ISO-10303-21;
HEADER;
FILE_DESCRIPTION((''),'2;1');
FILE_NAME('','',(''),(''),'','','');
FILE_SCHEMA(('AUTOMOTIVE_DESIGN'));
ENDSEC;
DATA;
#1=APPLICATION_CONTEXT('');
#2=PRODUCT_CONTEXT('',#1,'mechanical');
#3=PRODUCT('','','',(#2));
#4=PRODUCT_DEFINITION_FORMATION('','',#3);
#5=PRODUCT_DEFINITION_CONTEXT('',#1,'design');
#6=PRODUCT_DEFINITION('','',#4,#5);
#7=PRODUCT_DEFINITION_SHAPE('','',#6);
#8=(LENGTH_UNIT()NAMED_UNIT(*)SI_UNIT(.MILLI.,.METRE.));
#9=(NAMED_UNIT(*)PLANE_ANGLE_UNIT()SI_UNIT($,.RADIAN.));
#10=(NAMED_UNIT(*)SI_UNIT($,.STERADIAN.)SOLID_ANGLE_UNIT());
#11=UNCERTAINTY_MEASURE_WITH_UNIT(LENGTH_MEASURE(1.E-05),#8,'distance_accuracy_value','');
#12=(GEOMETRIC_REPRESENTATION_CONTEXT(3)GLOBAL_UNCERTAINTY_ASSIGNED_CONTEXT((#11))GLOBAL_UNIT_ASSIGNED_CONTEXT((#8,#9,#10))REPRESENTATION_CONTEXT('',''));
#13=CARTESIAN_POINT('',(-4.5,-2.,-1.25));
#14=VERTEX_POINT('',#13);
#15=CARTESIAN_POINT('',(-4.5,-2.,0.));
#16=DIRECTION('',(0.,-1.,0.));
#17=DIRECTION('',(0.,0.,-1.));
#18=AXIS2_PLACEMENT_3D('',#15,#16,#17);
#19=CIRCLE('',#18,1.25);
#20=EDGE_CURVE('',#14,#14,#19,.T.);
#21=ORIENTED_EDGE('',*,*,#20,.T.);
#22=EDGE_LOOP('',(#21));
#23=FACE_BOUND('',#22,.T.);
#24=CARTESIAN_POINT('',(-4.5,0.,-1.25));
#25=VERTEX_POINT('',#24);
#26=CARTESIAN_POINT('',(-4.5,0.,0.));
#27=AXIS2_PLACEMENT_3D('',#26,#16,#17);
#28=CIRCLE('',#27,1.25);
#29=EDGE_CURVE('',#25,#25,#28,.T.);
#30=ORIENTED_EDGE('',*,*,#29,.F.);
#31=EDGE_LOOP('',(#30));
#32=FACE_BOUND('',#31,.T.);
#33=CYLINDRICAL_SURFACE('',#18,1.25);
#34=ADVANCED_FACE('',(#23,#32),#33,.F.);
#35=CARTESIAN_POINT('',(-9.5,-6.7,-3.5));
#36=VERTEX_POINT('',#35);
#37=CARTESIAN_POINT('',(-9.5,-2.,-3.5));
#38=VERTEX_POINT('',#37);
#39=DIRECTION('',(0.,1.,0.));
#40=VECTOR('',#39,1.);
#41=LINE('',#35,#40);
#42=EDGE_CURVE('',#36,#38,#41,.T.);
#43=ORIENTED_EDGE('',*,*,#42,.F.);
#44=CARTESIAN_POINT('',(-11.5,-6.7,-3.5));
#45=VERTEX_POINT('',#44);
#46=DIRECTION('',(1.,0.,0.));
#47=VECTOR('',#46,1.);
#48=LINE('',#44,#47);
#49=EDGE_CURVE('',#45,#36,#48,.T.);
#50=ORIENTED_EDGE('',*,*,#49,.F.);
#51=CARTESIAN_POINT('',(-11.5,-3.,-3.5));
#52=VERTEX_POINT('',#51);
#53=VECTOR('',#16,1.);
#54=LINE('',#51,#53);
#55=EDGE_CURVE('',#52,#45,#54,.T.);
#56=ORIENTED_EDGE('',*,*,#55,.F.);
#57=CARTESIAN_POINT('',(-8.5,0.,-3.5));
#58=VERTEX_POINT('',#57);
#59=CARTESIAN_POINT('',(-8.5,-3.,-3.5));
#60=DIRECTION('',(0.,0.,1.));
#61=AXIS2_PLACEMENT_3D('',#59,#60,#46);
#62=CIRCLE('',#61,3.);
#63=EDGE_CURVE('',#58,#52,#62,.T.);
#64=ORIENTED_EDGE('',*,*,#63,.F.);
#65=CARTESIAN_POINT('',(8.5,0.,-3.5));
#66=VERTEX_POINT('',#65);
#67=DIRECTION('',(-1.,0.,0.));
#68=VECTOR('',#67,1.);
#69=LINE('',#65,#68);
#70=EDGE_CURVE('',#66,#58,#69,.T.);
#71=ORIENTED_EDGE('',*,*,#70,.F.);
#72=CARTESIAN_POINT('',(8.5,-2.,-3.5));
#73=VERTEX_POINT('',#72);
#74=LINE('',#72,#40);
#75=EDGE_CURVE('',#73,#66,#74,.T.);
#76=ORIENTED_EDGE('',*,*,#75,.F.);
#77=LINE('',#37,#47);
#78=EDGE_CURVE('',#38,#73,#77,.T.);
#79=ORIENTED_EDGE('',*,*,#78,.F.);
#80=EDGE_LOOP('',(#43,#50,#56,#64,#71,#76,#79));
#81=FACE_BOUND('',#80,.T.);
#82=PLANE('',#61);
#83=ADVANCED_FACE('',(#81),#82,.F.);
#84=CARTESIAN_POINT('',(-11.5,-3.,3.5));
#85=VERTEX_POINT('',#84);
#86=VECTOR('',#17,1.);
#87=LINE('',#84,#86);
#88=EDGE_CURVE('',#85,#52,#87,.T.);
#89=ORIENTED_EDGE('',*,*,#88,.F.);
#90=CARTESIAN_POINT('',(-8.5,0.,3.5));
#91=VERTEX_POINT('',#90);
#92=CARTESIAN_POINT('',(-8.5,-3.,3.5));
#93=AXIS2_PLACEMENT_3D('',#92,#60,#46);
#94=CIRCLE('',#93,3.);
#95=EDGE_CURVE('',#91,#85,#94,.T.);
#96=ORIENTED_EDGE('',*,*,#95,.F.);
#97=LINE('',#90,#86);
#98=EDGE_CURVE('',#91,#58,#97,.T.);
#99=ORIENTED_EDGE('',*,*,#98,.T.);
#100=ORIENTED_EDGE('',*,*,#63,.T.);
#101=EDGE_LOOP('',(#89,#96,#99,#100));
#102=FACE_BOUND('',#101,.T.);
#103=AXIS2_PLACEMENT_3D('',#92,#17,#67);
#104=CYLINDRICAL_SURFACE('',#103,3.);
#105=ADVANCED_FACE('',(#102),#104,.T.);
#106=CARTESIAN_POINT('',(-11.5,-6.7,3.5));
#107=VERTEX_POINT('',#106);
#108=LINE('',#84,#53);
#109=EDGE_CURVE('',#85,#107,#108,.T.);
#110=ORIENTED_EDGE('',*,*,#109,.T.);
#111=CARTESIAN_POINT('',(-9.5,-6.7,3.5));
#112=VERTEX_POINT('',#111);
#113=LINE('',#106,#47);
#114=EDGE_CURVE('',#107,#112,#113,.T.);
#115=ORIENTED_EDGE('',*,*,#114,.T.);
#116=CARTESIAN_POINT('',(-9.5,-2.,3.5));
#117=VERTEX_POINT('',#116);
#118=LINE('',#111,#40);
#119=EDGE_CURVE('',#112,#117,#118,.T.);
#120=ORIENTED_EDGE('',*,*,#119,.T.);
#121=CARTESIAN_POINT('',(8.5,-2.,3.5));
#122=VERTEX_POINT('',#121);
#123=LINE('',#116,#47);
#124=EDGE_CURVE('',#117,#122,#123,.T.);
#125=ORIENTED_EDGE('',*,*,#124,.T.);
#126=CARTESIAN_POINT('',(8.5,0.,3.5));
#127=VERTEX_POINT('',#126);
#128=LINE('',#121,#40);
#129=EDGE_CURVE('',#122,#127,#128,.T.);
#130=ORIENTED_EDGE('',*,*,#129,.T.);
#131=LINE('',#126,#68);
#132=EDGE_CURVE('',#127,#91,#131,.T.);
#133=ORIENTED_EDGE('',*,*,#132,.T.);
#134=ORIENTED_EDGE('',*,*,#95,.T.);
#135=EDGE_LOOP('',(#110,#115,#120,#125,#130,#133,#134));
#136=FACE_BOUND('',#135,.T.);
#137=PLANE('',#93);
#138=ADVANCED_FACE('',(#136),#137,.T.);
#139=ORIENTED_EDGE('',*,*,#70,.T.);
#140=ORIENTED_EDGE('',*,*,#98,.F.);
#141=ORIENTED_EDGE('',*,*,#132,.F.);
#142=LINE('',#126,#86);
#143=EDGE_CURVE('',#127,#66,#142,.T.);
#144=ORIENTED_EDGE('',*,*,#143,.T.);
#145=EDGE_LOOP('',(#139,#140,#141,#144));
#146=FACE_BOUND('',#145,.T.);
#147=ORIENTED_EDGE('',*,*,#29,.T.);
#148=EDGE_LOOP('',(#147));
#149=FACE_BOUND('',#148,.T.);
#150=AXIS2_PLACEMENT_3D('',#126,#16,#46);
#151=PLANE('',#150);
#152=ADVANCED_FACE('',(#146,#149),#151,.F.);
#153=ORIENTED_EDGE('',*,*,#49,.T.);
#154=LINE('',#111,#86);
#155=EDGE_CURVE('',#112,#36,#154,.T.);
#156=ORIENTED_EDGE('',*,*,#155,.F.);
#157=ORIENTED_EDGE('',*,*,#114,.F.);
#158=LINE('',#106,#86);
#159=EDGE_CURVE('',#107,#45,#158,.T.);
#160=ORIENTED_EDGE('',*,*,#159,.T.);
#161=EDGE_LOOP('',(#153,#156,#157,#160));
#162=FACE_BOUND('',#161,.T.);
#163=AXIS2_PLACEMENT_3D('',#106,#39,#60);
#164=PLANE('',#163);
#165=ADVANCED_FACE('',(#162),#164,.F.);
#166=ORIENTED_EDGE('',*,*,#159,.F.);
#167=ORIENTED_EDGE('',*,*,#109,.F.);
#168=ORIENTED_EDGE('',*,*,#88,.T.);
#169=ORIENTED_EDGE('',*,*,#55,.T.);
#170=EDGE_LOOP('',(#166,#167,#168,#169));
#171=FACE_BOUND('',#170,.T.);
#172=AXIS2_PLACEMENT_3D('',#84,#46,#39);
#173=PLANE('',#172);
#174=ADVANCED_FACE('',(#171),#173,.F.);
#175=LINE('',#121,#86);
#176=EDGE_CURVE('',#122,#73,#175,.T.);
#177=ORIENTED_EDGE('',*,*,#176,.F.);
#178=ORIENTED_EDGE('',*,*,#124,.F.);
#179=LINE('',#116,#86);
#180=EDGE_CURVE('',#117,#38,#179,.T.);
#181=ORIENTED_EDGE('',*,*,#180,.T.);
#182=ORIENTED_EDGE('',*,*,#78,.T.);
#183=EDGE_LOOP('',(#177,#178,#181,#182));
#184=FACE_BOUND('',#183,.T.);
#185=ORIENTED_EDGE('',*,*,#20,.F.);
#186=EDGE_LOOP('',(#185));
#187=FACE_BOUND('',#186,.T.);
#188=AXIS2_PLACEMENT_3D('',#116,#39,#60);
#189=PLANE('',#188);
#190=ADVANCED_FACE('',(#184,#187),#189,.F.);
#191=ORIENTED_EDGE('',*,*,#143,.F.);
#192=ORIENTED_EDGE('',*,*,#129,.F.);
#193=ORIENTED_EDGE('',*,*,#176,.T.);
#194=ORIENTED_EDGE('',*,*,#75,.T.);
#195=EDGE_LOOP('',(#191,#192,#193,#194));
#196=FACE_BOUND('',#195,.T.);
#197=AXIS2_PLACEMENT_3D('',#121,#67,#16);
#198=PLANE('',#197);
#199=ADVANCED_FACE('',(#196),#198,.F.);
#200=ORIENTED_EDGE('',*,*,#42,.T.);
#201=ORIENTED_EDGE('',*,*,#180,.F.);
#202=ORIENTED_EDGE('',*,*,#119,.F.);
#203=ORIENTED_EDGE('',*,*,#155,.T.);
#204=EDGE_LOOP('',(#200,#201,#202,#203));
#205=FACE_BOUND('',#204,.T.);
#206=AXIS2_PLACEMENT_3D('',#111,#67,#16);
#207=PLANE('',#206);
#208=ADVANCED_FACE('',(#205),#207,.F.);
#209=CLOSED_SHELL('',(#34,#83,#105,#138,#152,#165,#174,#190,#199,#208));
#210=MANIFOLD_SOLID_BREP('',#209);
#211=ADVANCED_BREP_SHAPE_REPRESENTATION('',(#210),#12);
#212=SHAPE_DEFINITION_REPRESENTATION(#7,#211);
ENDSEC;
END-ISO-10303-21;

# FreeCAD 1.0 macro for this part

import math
import FreeCAD as App
import Part
import Sketcher
Q = App.Units.Quantity

doc = App.newDocument("Part")
params = doc.addObject("Spreadsheet::Sheet", "Params")
for row, (alias, value) in enumerate([
    ("sketch1_radius", "3 mm"),
    ("sketch1_width", "17 mm"),
    ("sketch1_width2", "2 mm"),
    ("sketch1_height", "3.7 mm"),
    ("pad1_length", "7 mm"),
    ("sketch2_diameter", "2.5 mm"),
    ("hole_diameter", "2.5 mm"),
], start=1):
    params.set(f"A{row}", alias)
    params.set(f"B{row}", "=" + value)
    params.setAlias(f"B{row}", alias)

body = doc.addObject("PartDesign::Body", "Body")

sketch1 = body.newObject("Sketcher::SketchObject", "Sketch")
sketch1.AttachmentSupport = (doc.getObject("XY_Plane"), [""])
sketch1.MapMode = "FlatFace"
sketch1.addGeometry([
    Part.LineSegment(App.Vector(8.5, 0, 0), App.Vector(-8.5, 0, 0)),
    Part.ArcOfCircle(Part.Circle(App.Vector(-8.5, -3, 0), App.Vector(0, 0, 1), 3), math.radians(90), math.radians(180)),
    Part.LineSegment(App.Vector(-11.5, -3, 0), App.Vector(-11.5, -6.7, 0)),
    Part.LineSegment(App.Vector(-11.5, -6.7, 0), App.Vector(-9.5, -6.7, 0)),
    Part.LineSegment(App.Vector(-9.5, -6.7, 0), App.Vector(-9.5, -2, 0)),
    Part.LineSegment(App.Vector(-9.5, -2, 0), App.Vector(8.5, -2, 0)),
    Part.LineSegment(App.Vector(8.5, -2, 0), App.Vector(8.5, 0, 0)),
], False)
sketch1.addConstraint([
    Sketcher.Constraint("Tangent", 0, 2, 1, 1),
    Sketcher.Constraint("Tangent", 1, 2, 2, 1),
    Sketcher.Constraint("Coincident", 2, 2, 3, 1),
    Sketcher.Constraint("Coincident", 3, 2, 4, 1),
    Sketcher.Constraint("Coincident", 4, 2, 5, 1),
    Sketcher.Constraint("Coincident", 5, 2, 6, 1),
    Sketcher.Constraint("Coincident", 6, 2, 0, 1),
    Sketcher.Constraint("Horizontal", 0),
    Sketcher.Constraint("Vertical", 2),
    Sketcher.Constraint("Horizontal", 3),
    Sketcher.Constraint("Vertical", 4),
    Sketcher.Constraint("Horizontal", 5),
    Sketcher.Constraint("Vertical", 6),
    Sketcher.Constraint("Symmetric", 0, 2, 6, 2, -1, 1),
    Sketcher.Constraint("Equal", 3, 6),
    Sketcher.Constraint("Radius", 1, Q("3 mm")),
    Sketcher.Constraint("DistanceX", 0, 2, 0, 1, Q("17 mm")),
    Sketcher.Constraint("DistanceX", 3, 1, 3, 2, Q("2 mm")),
    Sketcher.Constraint("DistanceY", 2, 2, 2, 1, Q("3.7 mm")),
])
sketch1.setExpression("Constraints[15]", "Params.sketch1_radius")
sketch1.setExpression("Constraints[16]", "Params.sketch1_width")
sketch1.setExpression("Constraints[17]", "Params.sketch1_width2")
sketch1.setExpression("Constraints[18]", "Params.sketch1_height")
pad1 = body.newObject("PartDesign::Pad", "Pad")
pad1.Profile = sketch1
pad1.setExpression("Length", "Params.pad1_length")
pad1.Midplane = True

sketch2 = body.newObject("Sketcher::SketchObject", "Sketch001")
sketch2.AttachmentSupport = (doc.getObject("XZ_Plane"), [""])
sketch2.MapMode = "FlatFace"
sketch2.AttachmentOffset = App.Placement(App.Vector(0, 0, 2), App.Rotation())
sketch2.addGeometry(Part.Circle(App.Vector(-4.5, 0, 0), App.Vector(0, 0, 1), 1.2), False)
sketch2.addConstraint([
    Sketcher.Constraint("PointOnObject", 0, 3, -1),
    Sketcher.Constraint("Diameter", 0, Q("2.5 mm")),
    Sketcher.Constraint("DistanceX", 0, 3, -1, 1, Q("4.5 mm")),
])
sketch2.setExpression("Constraints[1]", "Params.sketch2_diameter")
doc.recompute()
hole = body.newObject("PartDesign::Hole", "Hole")
hole.Profile = sketch2
hole.ThreadType = "None"
hole.setExpression("Diameter", "Params.hole_diameter")
hole.DepthType = "ThroughAll"

doc.recompute()
